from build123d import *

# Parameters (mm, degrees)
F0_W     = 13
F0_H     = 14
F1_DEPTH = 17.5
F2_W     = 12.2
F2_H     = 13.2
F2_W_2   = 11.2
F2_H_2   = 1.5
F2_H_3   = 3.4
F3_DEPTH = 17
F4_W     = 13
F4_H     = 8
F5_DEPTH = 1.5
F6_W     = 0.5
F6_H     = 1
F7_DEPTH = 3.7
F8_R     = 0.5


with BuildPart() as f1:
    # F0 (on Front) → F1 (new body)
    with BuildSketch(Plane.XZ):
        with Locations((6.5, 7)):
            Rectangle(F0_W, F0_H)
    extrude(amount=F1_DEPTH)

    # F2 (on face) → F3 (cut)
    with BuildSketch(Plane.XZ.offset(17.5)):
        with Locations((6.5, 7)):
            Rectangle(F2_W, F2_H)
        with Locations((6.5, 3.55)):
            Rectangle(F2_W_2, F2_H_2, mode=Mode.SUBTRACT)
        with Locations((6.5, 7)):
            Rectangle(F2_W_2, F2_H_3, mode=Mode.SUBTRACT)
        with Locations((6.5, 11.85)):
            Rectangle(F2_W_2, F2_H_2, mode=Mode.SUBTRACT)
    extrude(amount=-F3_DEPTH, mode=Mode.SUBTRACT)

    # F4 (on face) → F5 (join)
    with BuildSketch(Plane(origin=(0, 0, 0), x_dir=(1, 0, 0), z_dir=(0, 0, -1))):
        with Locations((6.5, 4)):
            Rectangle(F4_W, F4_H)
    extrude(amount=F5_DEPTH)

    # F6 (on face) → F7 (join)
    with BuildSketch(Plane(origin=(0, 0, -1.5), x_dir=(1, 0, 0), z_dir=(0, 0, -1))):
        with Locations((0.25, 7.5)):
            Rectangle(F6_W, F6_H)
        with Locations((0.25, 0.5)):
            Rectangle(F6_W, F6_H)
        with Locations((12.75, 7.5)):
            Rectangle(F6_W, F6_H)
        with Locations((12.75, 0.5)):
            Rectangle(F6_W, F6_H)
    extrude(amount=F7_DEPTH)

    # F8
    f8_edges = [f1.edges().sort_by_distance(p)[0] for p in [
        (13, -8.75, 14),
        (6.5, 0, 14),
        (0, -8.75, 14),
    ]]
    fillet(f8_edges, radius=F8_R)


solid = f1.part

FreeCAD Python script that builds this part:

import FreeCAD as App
import Part
import Sketcher


def edges_at(feature, points):
    """Names of the edges that pass closest to the given points."""
    edges = feature.Shape.Edges
    near = lambda p: min(range(len(edges)), key=lambda i: edges[i].distToShape(Part.Vertex(*p))[0])
    return sorted({f"Edge{near(p) + 1}" for p in points})

doc = App.newDocument("Part")
body = doc.addObject("PartDesign::Body", "Body")

# Sketch on XZ plane
sketch1 = body.newObject("Sketcher::SketchObject", "Sketch")
sketch1.AttachmentSupport = (doc.getObject("XZ_Plane"), [""])
sketch1.MapMode = "FlatFace"
sketch1.addGeometry([
    Part.LineSegment(App.Vector(0, 14, 0), App.Vector(0, 0, 0)),
    Part.LineSegment(App.Vector(0, 0, 0), App.Vector(13, 0, 0)),
    Part.LineSegment(App.Vector(13, 0, 0), App.Vector(13, 14, 0)),
    Part.LineSegment(App.Vector(13, 14, 0), App.Vector(0, 14, 0)),
], False)
sketch1.addConstraint([
    Sketcher.Constraint("Coincident", 0, 2, 1, 1),
    Sketcher.Constraint("Coincident", 1, 2, 2, 1),
    Sketcher.Constraint("Coincident", 2, 2, 3, 1),
    Sketcher.Constraint("Coincident", 3, 2, 0, 1),
    Sketcher.Constraint("Vertical", 0),
    Sketcher.Constraint("Horizontal", 1),
    Sketcher.Constraint("Vertical", 2),
    Sketcher.Constraint("Horizontal", 3),
    Sketcher.Constraint("Coincident", 0, 2, -1, 1),
    Sketcher.Constraint("DistanceX", 1, 1, 1, 2, 13.0),
    Sketcher.Constraint("DistanceY", 0, 2, 0, 1, 14.0),
])
pad1 = body.newObject("PartDesign::Pad", "Pad")
pad1.Profile = sketch1
pad1.Length = 17.5

# Sketch on XZ plane
sketch2 = body.newObject("Sketcher::SketchObject", "Sketch001")
sketch2.AttachmentSupport = (doc.getObject("XZ_Plane"), [""])
sketch2.MapMode = "FlatFace"
sketch2.AttachmentOffset = App.Placement(App.Vector(0, 0, 17.5), App.Rotation())
sketch2.addGeometry([
    Part.LineSegment(App.Vector(0.4, 13.6, 0), App.Vector(0.4, 0.4, 0)),  # 0
    Part.LineSegment(App.Vector(0.4, 0.4, 0), App.Vector(12.6, 0.4, 0)),  # 1
    Part.LineSegment(App.Vector(12.6, 0.4, 0), App.Vector(12.6, 13.6, 0)),  # 2
    Part.LineSegment(App.Vector(12.6, 13.6, 0), App.Vector(0.4, 13.6, 0)),  # 3
    Part.LineSegment(App.Vector(12.1, 2.8, 0), App.Vector(0.9, 2.8, 0)),  # 4
    Part.LineSegment(App.Vector(0.9, 2.8, 0), App.Vector(0.9, 4.3, 0)),  # 5
    Part.LineSegment(App.Vector(0.9, 4.3, 0), App.Vector(12.1, 4.3, 0)),  # 6
    Part.LineSegment(App.Vector(12.1, 4.3, 0), App.Vector(12.1, 2.8, 0)),  # 7
    Part.LineSegment(App.Vector(12.1, 5.3, 0), App.Vector(0.9, 5.3, 0)),  # 8
    Part.LineSegment(App.Vector(0.9, 5.3, 0), App.Vector(0.9, 8.7, 0)),  # 9
    Part.LineSegment(App.Vector(0.9, 8.7, 0), App.Vector(12.1, 8.7, 0)),  # 10
    Part.LineSegment(App.Vector(12.1, 8.7, 0), App.Vector(12.1, 5.3, 0)),  # 11
    Part.LineSegment(App.Vector(12.1, 11.1, 0), App.Vector(0.9, 11.1, 0)),  # 12
    Part.LineSegment(App.Vector(0.9, 11.1, 0), App.Vector(0.9, 12.6, 0)),  # 13
    Part.LineSegment(App.Vector(0.9, 12.6, 0), App.Vector(12.1, 12.6, 0)),  # 14
    Part.LineSegment(App.Vector(12.1, 12.6, 0), App.Vector(12.1, 11.1, 0)),  # 15
], False)
sketch2.addConstraint([
    Sketcher.Constraint("Coincident", 0, 2, 1, 1),
    Sketcher.Constraint("Coincident", 1, 2, 2, 1),
    Sketcher.Constraint("Coincident", 2, 2, 3, 1),
    Sketcher.Constraint("Coincident", 3, 2, 0, 1),
    Sketcher.Constraint("Coincident", 4, 2, 5, 1),
    Sketcher.Constraint("Coincident", 5, 2, 6, 1),
    Sketcher.Constraint("Coincident", 6, 2, 7, 1),
    Sketcher.Constraint("Coincident", 7, 2, 4, 1),
    Sketcher.Constraint("Coincident", 8, 2, 9, 1),
    Sketcher.Constraint("Coincident", 9, 2, 10, 1),
    Sketcher.Constraint("Coincident", 10, 2, 11, 1),
    Sketcher.Constraint("Coincident", 11, 2, 8, 1),
    Sketcher.Constraint("Coincident", 12, 2, 13, 1),
    Sketcher.Constraint("Coincident", 13, 2, 14, 1),
    Sketcher.Constraint("Coincident", 14, 2, 15, 1),
    Sketcher.Constraint("Coincident", 15, 2, 12, 1),
    Sketcher.Constraint("Vertical", 0),
    Sketcher.Constraint("Horizontal", 1),
    Sketcher.Constraint("Vertical", 2),
    Sketcher.Constraint("Horizontal", 3),
    Sketcher.Constraint("Horizontal", 4),
    Sketcher.Constraint("Vertical", 5),
    Sketcher.Constraint("Horizontal", 6),
    Sketcher.Constraint("Vertical", 7),
    Sketcher.Constraint("Horizontal", 8),
    Sketcher.Constraint("Vertical", 9),
    Sketcher.Constraint("Horizontal", 10),
    Sketcher.Constraint("Vertical", 11),
    Sketcher.Constraint("Horizontal", 12),
    Sketcher.Constraint("Vertical", 13),
    Sketcher.Constraint("Horizontal", 14),
    Sketcher.Constraint("Vertical", 15),
    Sketcher.Constraint("Vertical", 5, 2, 8, 2),
    Sketcher.Constraint("Vertical", 7, 2, 10, 2),
    Sketcher.Constraint("Vertical", 9, 2, 12, 2),
    Sketcher.Constraint("Vertical", 11, 2, 14, 2),
    Sketcher.Constraint("Equal", 7, 13),
    Sketcher.Constraint("DistanceX", 1, 1, 1, 2, 12.2),
    Sketcher.Constraint("DistanceX", 4, 2, 4, 1, 11.2),
    Sketcher.Constraint("DistanceY", 0, 2, 0, 1, 13.2),
    Sketcher.Constraint("DistanceY", 5, 1, 5, 2, 1.5),
    Sketcher.Constraint("DistanceY", 9, 1, 9, 2, 3.4),
    Sketcher.Constraint("DistanceY", 5, 2, 8, 2, 1.0),
    Sketcher.Constraint("DistanceY", 13, 2, 3, 2, 1.0),
    Sketcher.Constraint("DistanceX", -1, 1, 0, 2, 0.4),
    Sketcher.Constraint("DistanceY", -1, 1, 0, 2, 0.4),
    Sketcher.Constraint("DistanceX", -1, 1, 4, 2, 0.9),
    Sketcher.Constraint("DistanceY", -1, 1, 4, 2, 2.8),
])
pocket1 = body.newObject("PartDesign::Pocket", "Pocket")
pocket1.Profile = sketch2
pocket1.Length = 17

# Sketch on XY plane
sketch3 = body.newObject("Sketcher::SketchObject", "Sketch002")
sketch3.AttachmentSupport = (doc.getObject("XY_Plane"), [""])
sketch3.MapMode = "FlatFace"
sketch3.addGeometry([
    Part.LineSegment(App.Vector(0, -8, 0), App.Vector(0, 0, 0)),
    Part.LineSegment(App.Vector(0, 0, 0), App.Vector(13, 0, 0)),
    Part.LineSegment(App.Vector(13, 0, 0), App.Vector(13, -8, 0)),
    Part.LineSegment(App.Vector(13, -8, 0), App.Vector(0, -8, 0)),
], False)
sketch3.addConstraint([
    Sketcher.Constraint("Coincident", 0, 2, 1, 1),
    Sketcher.Constraint("Coincident", 1, 2, 2, 1),
    Sketcher.Constraint("Coincident", 2, 2, 3, 1),
    Sketcher.Constraint("Coincident", 3, 2, 0, 1),
    Sketcher.Constraint("Vertical", 0),
    Sketcher.Constraint("Horizontal", 1),
    Sketcher.Constraint("Vertical", 2),
    Sketcher.Constraint("Horizontal", 3),
    Sketcher.Constraint("Coincident", 0, 2, -1, 1),
    Sketcher.Constraint("DistanceX", 1, 1, 1, 2, 13.0),
    Sketcher.Constraint("DistanceY", 0, 1, 0, 2, 8.0),
])
pad2 = body.newObject("PartDesign::Pad", "Pad001")
pad2.Profile = sketch3
pad2.Length = 1.5
pad2.Reversed = True

# Sketch on XY plane
sketch4 = body.newObject("Sketcher::SketchObject", "Sketch003")
sketch4.AttachmentSupport = (doc.getObject("XY_Plane"), [""])
sketch4.MapMode = "FlatFace"
sketch4.AttachmentOffset = App.Placement(App.Vector(0, 0, -1.5), App.Rotation())
sketch4.addGeometry([
    Part.LineSegment(App.Vector(0, -8, 0), App.Vector(0, -7, 0)),  # 0
    Part.LineSegment(App.Vector(0, -7, 0), App.Vector(0.5, -7, 0)),  # 1
    Part.LineSegment(App.Vector(0.5, -7, 0), App.Vector(0.5, -8, 0)),  # 2
    Part.LineSegment(App.Vector(0.5, -8, 0), App.Vector(0, -8, 0)),  # 3
    Part.LineSegment(App.Vector(0, -1, 0), App.Vector(0, 0, 0)),  # 4
    Part.LineSegment(App.Vector(0, 0, 0), App.Vector(0.5, 0, 0)),  # 5
    Part.LineSegment(App.Vector(0.5, 0, 0), App.Vector(0.5, -1, 0)),  # 6
    Part.LineSegment(App.Vector(0.5, -1, 0), App.Vector(0, -1, 0)),  # 7
    Part.LineSegment(App.Vector(12.5, -8, 0), App.Vector(12.5, -7, 0)),  # 8
    Part.LineSegment(App.Vector(12.5, -7, 0), App.Vector(13, -7, 0)),  # 9
    Part.LineSegment(App.Vector(13, -7, 0), App.Vector(13, -8, 0)),  # 10
    Part.LineSegment(App.Vector(13, -8, 0), App.Vector(12.5, -8, 0)),  # 11
    Part.LineSegment(App.Vector(12.5, -1, 0), App.Vector(12.5, 0, 0)),  # 12
    Part.LineSegment(App.Vector(12.5, 0, 0), App.Vector(13, 0, 0)),  # 13
    Part.LineSegment(App.Vector(13, 0, 0), App.Vector(13, -1, 0)),  # 14
    Part.LineSegment(App.Vector(13, -1, 0), App.Vector(12.5, -1, 0)),  # 15
], False)
sketch4.addConstraint([
    Sketcher.Constraint("Coincident", 0, 2, 1, 1),
    Sketcher.Constraint("Coincident", 1, 2, 2, 1),
    Sketcher.Constraint("Coincident", 2, 2, 3, 1),
    Sketcher.Constraint("Coincident", 3, 2, 0, 1),
    Sketcher.Constraint("Coincident", 4, 2, 5, 1),
    Sketcher.Constraint("Coincident", 5, 2, 6, 1),
    Sketcher.Constraint("Coincident", 6, 2, 7, 1),
    Sketcher.Constraint("Coincident", 7, 2, 4, 1),
    Sketcher.Constraint("Coincident", 8, 2, 9, 1),
    Sketcher.Constraint("Coincident", 9, 2, 10, 1),
    Sketcher.Constraint("Coincident", 10, 2, 11, 1),
    Sketcher.Constraint("Coincident", 11, 2, 8, 1),
    Sketcher.Constraint("Coincident", 12, 2, 13, 1),
    Sketcher.Constraint("Coincident", 13, 2, 14, 1),
    Sketcher.Constraint("Coincident", 14, 2, 15, 1),
    Sketcher.Constraint("Coincident", 15, 2, 12, 1),
    Sketcher.Constraint("Vertical", 0),
    Sketcher.Constraint("Horizontal", 1),
    Sketcher.Constraint("Vertical", 2),
    Sketcher.Constraint("Horizontal", 3),
    Sketcher.Constraint("Vertical", 4),
    Sketcher.Constraint("Horizontal", 5),
    Sketcher.Constraint("Vertical", 6),
    Sketcher.Constraint("Horizontal", 7),
    Sketcher.Constraint("Vertical", 8),
    Sketcher.Constraint("Horizontal", 9),
    Sketcher.Constraint("Vertical", 10),
    Sketcher.Constraint("Horizontal", 11),
    Sketcher.Constraint("Vertical", 12),
    Sketcher.Constraint("Horizontal", 13),
    Sketcher.Constraint("Vertical", 14),
    Sketcher.Constraint("Horizontal", 15),
    Sketcher.Constraint("Coincident", 4, 2, -1, 1),
    Sketcher.Constraint("PointOnObject", 0, 2, -2),
    Sketcher.Constraint("PointOnObject", 12, 2, -1),
    Sketcher.Constraint("Horizontal", 1, 2, 8, 2),
    Sketcher.Constraint("Horizontal", 3, 2, 10, 2),
    Sketcher.Constraint("Horizontal", 7, 2, 14, 2),
    Sketcher.Constraint("Vertical", 2, 2, 5, 2),
    Sketcher.Constraint("Vertical", 11, 2, 12, 2),
    Sketcher.Constraint("Vertical", 10, 2, 13, 2),
    Sketcher.Constraint("Equal", 7, 9),
    Sketcher.Constraint("Equal", 2, 4),
    Sketcher.Constraint("DistanceY", 0, 1, 0, 2, 1.0),
    Sketcher.Constraint("DistanceX", 1, 1, 1, 2, 0.5),
    Sketcher.Constraint("DistanceY", 0, 2, -1, 1, 7.0),
    Sketcher.Constraint("DistanceX", -1, 1, 9, 2, 13.0),
])
pad3 = body.newObject("PartDesign::Pad", "Pad002")
pad3.Profile = sketch4
pad3.Length = 3.7
pad3.Reversed = True
doc.recompute()

fillet = body.newObject("PartDesign::Fillet", "Fillet")
fillet.Base = (pad3, edges_at(pad3, [(13, -8.75, 14), (6.5, 0, 14), (0, -8.75, 14)]))
fillet.Radius = 0.5

doc.recompute()
